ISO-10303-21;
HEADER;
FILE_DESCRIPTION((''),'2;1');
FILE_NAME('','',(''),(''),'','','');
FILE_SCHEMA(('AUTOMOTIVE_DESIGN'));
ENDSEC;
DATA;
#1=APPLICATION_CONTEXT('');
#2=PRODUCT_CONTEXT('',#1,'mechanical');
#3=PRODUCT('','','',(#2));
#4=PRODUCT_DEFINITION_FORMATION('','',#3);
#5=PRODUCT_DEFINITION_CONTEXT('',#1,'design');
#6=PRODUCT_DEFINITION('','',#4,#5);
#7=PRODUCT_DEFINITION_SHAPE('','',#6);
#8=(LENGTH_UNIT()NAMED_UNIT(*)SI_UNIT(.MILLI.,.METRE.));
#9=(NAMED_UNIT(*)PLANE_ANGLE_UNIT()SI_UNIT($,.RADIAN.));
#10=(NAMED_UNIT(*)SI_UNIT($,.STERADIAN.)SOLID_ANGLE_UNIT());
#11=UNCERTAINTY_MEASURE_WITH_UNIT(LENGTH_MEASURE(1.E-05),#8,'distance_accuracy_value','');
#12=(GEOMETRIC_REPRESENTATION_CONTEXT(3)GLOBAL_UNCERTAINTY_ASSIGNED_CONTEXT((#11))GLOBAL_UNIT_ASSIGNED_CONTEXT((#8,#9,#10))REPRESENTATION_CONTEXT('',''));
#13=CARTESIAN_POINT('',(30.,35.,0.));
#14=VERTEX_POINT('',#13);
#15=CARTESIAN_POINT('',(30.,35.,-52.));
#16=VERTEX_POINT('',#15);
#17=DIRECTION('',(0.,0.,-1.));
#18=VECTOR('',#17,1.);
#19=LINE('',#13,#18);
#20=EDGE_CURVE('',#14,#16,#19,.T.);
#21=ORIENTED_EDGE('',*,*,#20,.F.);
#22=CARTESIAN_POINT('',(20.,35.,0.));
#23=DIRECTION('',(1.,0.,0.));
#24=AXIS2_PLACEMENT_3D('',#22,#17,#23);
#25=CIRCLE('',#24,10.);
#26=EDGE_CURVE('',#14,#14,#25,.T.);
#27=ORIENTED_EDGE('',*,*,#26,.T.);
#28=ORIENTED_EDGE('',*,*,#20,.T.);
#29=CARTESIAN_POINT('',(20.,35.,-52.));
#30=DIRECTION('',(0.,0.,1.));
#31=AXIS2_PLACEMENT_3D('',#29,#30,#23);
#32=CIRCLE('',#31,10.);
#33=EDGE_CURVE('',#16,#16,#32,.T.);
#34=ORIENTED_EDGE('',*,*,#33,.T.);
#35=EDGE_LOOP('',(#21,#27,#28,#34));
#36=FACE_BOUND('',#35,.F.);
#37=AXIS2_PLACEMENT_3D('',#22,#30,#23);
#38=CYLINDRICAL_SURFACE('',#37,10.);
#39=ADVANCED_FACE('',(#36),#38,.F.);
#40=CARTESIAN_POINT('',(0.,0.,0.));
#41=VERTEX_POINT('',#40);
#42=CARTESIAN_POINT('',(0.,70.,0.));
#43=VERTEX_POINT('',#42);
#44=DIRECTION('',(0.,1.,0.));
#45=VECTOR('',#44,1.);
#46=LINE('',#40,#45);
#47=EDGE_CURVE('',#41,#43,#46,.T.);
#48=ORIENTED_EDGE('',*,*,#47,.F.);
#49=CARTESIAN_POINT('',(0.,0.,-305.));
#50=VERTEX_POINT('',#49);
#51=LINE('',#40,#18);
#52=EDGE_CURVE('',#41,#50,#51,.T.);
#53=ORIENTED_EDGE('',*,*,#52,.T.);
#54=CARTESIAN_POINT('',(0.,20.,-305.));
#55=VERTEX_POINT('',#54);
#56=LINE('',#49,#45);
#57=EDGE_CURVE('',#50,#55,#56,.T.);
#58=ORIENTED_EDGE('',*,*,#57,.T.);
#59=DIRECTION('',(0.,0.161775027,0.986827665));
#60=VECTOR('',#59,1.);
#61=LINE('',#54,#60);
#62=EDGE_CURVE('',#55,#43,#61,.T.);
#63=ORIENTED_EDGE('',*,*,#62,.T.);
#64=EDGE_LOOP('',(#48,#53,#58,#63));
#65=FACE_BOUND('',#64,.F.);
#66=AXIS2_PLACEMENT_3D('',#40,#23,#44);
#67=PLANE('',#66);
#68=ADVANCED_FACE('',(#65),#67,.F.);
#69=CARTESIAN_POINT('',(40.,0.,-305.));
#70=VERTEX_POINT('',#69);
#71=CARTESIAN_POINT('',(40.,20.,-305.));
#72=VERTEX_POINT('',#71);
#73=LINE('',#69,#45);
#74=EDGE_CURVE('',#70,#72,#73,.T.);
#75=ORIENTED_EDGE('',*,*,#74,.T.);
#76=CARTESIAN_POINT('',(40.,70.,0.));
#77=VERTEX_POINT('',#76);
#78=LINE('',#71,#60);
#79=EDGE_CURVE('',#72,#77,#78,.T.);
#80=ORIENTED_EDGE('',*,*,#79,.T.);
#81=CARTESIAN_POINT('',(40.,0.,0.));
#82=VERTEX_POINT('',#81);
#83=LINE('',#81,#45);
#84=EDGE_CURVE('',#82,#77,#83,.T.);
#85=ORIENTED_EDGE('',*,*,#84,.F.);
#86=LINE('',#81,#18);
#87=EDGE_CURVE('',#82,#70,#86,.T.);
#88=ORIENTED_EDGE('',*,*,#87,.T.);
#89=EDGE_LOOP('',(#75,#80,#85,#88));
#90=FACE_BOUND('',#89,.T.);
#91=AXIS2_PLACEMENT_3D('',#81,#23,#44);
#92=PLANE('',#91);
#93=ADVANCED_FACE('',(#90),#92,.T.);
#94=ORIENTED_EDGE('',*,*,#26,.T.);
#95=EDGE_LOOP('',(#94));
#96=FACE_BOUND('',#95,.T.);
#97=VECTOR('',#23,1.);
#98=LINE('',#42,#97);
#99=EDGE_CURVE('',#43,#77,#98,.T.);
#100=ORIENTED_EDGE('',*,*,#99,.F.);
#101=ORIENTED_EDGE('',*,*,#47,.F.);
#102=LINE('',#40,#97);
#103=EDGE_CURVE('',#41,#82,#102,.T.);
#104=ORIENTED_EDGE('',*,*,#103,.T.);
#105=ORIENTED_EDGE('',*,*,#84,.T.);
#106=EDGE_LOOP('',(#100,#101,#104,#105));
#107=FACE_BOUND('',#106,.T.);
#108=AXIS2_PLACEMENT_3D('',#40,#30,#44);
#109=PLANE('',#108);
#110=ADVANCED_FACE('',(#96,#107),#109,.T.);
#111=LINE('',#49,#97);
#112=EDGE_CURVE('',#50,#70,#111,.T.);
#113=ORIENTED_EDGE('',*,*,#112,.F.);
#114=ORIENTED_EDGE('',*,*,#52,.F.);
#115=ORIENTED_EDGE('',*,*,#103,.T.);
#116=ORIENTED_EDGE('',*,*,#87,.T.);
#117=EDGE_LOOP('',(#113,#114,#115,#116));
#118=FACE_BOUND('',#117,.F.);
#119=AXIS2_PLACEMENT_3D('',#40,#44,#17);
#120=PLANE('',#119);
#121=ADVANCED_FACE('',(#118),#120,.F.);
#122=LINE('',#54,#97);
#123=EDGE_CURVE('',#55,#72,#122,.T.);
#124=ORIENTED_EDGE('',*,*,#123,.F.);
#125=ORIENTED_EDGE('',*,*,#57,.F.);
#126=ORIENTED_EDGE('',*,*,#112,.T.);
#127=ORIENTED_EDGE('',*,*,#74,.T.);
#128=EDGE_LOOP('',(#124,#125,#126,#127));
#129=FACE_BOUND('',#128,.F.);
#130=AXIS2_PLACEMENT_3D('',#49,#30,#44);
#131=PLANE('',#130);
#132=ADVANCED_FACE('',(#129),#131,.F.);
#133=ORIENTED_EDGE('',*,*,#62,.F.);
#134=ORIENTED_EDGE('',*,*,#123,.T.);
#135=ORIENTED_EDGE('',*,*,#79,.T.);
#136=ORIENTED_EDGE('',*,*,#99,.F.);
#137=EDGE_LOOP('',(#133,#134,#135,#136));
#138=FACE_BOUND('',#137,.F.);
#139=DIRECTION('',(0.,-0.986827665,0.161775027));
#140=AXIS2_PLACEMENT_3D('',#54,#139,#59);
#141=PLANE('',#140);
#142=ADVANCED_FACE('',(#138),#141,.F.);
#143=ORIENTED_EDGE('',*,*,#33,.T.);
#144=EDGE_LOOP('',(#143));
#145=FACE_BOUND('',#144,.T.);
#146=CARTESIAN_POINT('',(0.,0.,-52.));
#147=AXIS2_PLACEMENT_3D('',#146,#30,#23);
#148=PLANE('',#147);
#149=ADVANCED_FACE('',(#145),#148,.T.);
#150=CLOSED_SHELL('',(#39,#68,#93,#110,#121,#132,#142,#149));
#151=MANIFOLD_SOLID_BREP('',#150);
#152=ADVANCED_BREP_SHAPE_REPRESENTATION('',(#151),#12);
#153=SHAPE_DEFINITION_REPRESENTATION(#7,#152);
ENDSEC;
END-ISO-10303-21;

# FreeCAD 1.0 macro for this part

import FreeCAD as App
import Part
import Sketcher


def add_polygon(sketch, points):
    """Adds a closed chain of lines whose ends are joined by coincident constraints."""
    first, n = sketch.GeometryCount, len(points)
    for a, b in zip(points, points[1:] + points[:1]):
        sketch.addGeometry(Part.LineSegment(App.Vector(*a, 0), App.Vector(*b, 0)), False)
    for i in range(n):
        sketch.addConstraint(Sketcher.Constraint("Coincident", first + i, 2, first + (i + 1) % n, 1))

doc = App.newDocument("Part")
body = doc.addObject("PartDesign::Body", "Body")

# Sketch on YZ plane
sketch1 = body.newObject("Sketcher::SketchObject", "Sketch")
sketch1.AttachmentSupport = (doc.getObject("YZ_Plane"), [""])
sketch1.MapMode = "FlatFace"
add_polygon(sketch1, [(70, 0), (0, 0), (0, -305), (20, -305)])  # lines 0-3
sketch1.addConstraint(Sketcher.Constraint("Horizontal", 0))
sketch1.addConstraint(Sketcher.Constraint("Vertical", 1))
sketch1.addConstraint(Sketcher.Constraint("Horizontal", 2))
sketch1.addConstraint(Sketcher.Constraint("Coincident", 0, 2, -1, 1))
sketch1.addConstraint(Sketcher.Constraint("DistanceX", 0, 2, 0, 1, 70.0))
sketch1.addConstraint(Sketcher.Constraint("DistanceX", 2, 1, 2, 2, 20.0))
sketch1.addConstraint(Sketcher.Constraint("DistanceY", 1, 2, 1, 1, 305.0))
pad1 = body.newObject("PartDesign::Pad", "Pad")
pad1.Profile = sketch1
pad1.Length = 40

# Sketch on XY plane
sketch2 = body.newObject("Sketcher::SketchObject", "Sketch001")
sketch2.AttachmentSupport = (doc.getObject("XY_Plane"), [""])
sketch2.MapMode = "FlatFace"
sketch2.addGeometry(Part.Circle(App.Vector(20, 35, 0), App.Vector(0, 0, 1), 10), False)
sketch2.addConstraint(Sketcher.Constraint("Diameter", 0, 20.0))
sketch2.addConstraint(Sketcher.Constraint("DistanceX", -1, 1, 0, 3, 20.0))
sketch2.addConstraint(Sketcher.Constraint("DistanceY", -1, 1, 0, 3, 35.0))
pocket1 = body.newObject("PartDesign::Pocket", "Pocket")
pocket1.Profile = sketch2
pocket1.Length = 52

doc.recompute()
